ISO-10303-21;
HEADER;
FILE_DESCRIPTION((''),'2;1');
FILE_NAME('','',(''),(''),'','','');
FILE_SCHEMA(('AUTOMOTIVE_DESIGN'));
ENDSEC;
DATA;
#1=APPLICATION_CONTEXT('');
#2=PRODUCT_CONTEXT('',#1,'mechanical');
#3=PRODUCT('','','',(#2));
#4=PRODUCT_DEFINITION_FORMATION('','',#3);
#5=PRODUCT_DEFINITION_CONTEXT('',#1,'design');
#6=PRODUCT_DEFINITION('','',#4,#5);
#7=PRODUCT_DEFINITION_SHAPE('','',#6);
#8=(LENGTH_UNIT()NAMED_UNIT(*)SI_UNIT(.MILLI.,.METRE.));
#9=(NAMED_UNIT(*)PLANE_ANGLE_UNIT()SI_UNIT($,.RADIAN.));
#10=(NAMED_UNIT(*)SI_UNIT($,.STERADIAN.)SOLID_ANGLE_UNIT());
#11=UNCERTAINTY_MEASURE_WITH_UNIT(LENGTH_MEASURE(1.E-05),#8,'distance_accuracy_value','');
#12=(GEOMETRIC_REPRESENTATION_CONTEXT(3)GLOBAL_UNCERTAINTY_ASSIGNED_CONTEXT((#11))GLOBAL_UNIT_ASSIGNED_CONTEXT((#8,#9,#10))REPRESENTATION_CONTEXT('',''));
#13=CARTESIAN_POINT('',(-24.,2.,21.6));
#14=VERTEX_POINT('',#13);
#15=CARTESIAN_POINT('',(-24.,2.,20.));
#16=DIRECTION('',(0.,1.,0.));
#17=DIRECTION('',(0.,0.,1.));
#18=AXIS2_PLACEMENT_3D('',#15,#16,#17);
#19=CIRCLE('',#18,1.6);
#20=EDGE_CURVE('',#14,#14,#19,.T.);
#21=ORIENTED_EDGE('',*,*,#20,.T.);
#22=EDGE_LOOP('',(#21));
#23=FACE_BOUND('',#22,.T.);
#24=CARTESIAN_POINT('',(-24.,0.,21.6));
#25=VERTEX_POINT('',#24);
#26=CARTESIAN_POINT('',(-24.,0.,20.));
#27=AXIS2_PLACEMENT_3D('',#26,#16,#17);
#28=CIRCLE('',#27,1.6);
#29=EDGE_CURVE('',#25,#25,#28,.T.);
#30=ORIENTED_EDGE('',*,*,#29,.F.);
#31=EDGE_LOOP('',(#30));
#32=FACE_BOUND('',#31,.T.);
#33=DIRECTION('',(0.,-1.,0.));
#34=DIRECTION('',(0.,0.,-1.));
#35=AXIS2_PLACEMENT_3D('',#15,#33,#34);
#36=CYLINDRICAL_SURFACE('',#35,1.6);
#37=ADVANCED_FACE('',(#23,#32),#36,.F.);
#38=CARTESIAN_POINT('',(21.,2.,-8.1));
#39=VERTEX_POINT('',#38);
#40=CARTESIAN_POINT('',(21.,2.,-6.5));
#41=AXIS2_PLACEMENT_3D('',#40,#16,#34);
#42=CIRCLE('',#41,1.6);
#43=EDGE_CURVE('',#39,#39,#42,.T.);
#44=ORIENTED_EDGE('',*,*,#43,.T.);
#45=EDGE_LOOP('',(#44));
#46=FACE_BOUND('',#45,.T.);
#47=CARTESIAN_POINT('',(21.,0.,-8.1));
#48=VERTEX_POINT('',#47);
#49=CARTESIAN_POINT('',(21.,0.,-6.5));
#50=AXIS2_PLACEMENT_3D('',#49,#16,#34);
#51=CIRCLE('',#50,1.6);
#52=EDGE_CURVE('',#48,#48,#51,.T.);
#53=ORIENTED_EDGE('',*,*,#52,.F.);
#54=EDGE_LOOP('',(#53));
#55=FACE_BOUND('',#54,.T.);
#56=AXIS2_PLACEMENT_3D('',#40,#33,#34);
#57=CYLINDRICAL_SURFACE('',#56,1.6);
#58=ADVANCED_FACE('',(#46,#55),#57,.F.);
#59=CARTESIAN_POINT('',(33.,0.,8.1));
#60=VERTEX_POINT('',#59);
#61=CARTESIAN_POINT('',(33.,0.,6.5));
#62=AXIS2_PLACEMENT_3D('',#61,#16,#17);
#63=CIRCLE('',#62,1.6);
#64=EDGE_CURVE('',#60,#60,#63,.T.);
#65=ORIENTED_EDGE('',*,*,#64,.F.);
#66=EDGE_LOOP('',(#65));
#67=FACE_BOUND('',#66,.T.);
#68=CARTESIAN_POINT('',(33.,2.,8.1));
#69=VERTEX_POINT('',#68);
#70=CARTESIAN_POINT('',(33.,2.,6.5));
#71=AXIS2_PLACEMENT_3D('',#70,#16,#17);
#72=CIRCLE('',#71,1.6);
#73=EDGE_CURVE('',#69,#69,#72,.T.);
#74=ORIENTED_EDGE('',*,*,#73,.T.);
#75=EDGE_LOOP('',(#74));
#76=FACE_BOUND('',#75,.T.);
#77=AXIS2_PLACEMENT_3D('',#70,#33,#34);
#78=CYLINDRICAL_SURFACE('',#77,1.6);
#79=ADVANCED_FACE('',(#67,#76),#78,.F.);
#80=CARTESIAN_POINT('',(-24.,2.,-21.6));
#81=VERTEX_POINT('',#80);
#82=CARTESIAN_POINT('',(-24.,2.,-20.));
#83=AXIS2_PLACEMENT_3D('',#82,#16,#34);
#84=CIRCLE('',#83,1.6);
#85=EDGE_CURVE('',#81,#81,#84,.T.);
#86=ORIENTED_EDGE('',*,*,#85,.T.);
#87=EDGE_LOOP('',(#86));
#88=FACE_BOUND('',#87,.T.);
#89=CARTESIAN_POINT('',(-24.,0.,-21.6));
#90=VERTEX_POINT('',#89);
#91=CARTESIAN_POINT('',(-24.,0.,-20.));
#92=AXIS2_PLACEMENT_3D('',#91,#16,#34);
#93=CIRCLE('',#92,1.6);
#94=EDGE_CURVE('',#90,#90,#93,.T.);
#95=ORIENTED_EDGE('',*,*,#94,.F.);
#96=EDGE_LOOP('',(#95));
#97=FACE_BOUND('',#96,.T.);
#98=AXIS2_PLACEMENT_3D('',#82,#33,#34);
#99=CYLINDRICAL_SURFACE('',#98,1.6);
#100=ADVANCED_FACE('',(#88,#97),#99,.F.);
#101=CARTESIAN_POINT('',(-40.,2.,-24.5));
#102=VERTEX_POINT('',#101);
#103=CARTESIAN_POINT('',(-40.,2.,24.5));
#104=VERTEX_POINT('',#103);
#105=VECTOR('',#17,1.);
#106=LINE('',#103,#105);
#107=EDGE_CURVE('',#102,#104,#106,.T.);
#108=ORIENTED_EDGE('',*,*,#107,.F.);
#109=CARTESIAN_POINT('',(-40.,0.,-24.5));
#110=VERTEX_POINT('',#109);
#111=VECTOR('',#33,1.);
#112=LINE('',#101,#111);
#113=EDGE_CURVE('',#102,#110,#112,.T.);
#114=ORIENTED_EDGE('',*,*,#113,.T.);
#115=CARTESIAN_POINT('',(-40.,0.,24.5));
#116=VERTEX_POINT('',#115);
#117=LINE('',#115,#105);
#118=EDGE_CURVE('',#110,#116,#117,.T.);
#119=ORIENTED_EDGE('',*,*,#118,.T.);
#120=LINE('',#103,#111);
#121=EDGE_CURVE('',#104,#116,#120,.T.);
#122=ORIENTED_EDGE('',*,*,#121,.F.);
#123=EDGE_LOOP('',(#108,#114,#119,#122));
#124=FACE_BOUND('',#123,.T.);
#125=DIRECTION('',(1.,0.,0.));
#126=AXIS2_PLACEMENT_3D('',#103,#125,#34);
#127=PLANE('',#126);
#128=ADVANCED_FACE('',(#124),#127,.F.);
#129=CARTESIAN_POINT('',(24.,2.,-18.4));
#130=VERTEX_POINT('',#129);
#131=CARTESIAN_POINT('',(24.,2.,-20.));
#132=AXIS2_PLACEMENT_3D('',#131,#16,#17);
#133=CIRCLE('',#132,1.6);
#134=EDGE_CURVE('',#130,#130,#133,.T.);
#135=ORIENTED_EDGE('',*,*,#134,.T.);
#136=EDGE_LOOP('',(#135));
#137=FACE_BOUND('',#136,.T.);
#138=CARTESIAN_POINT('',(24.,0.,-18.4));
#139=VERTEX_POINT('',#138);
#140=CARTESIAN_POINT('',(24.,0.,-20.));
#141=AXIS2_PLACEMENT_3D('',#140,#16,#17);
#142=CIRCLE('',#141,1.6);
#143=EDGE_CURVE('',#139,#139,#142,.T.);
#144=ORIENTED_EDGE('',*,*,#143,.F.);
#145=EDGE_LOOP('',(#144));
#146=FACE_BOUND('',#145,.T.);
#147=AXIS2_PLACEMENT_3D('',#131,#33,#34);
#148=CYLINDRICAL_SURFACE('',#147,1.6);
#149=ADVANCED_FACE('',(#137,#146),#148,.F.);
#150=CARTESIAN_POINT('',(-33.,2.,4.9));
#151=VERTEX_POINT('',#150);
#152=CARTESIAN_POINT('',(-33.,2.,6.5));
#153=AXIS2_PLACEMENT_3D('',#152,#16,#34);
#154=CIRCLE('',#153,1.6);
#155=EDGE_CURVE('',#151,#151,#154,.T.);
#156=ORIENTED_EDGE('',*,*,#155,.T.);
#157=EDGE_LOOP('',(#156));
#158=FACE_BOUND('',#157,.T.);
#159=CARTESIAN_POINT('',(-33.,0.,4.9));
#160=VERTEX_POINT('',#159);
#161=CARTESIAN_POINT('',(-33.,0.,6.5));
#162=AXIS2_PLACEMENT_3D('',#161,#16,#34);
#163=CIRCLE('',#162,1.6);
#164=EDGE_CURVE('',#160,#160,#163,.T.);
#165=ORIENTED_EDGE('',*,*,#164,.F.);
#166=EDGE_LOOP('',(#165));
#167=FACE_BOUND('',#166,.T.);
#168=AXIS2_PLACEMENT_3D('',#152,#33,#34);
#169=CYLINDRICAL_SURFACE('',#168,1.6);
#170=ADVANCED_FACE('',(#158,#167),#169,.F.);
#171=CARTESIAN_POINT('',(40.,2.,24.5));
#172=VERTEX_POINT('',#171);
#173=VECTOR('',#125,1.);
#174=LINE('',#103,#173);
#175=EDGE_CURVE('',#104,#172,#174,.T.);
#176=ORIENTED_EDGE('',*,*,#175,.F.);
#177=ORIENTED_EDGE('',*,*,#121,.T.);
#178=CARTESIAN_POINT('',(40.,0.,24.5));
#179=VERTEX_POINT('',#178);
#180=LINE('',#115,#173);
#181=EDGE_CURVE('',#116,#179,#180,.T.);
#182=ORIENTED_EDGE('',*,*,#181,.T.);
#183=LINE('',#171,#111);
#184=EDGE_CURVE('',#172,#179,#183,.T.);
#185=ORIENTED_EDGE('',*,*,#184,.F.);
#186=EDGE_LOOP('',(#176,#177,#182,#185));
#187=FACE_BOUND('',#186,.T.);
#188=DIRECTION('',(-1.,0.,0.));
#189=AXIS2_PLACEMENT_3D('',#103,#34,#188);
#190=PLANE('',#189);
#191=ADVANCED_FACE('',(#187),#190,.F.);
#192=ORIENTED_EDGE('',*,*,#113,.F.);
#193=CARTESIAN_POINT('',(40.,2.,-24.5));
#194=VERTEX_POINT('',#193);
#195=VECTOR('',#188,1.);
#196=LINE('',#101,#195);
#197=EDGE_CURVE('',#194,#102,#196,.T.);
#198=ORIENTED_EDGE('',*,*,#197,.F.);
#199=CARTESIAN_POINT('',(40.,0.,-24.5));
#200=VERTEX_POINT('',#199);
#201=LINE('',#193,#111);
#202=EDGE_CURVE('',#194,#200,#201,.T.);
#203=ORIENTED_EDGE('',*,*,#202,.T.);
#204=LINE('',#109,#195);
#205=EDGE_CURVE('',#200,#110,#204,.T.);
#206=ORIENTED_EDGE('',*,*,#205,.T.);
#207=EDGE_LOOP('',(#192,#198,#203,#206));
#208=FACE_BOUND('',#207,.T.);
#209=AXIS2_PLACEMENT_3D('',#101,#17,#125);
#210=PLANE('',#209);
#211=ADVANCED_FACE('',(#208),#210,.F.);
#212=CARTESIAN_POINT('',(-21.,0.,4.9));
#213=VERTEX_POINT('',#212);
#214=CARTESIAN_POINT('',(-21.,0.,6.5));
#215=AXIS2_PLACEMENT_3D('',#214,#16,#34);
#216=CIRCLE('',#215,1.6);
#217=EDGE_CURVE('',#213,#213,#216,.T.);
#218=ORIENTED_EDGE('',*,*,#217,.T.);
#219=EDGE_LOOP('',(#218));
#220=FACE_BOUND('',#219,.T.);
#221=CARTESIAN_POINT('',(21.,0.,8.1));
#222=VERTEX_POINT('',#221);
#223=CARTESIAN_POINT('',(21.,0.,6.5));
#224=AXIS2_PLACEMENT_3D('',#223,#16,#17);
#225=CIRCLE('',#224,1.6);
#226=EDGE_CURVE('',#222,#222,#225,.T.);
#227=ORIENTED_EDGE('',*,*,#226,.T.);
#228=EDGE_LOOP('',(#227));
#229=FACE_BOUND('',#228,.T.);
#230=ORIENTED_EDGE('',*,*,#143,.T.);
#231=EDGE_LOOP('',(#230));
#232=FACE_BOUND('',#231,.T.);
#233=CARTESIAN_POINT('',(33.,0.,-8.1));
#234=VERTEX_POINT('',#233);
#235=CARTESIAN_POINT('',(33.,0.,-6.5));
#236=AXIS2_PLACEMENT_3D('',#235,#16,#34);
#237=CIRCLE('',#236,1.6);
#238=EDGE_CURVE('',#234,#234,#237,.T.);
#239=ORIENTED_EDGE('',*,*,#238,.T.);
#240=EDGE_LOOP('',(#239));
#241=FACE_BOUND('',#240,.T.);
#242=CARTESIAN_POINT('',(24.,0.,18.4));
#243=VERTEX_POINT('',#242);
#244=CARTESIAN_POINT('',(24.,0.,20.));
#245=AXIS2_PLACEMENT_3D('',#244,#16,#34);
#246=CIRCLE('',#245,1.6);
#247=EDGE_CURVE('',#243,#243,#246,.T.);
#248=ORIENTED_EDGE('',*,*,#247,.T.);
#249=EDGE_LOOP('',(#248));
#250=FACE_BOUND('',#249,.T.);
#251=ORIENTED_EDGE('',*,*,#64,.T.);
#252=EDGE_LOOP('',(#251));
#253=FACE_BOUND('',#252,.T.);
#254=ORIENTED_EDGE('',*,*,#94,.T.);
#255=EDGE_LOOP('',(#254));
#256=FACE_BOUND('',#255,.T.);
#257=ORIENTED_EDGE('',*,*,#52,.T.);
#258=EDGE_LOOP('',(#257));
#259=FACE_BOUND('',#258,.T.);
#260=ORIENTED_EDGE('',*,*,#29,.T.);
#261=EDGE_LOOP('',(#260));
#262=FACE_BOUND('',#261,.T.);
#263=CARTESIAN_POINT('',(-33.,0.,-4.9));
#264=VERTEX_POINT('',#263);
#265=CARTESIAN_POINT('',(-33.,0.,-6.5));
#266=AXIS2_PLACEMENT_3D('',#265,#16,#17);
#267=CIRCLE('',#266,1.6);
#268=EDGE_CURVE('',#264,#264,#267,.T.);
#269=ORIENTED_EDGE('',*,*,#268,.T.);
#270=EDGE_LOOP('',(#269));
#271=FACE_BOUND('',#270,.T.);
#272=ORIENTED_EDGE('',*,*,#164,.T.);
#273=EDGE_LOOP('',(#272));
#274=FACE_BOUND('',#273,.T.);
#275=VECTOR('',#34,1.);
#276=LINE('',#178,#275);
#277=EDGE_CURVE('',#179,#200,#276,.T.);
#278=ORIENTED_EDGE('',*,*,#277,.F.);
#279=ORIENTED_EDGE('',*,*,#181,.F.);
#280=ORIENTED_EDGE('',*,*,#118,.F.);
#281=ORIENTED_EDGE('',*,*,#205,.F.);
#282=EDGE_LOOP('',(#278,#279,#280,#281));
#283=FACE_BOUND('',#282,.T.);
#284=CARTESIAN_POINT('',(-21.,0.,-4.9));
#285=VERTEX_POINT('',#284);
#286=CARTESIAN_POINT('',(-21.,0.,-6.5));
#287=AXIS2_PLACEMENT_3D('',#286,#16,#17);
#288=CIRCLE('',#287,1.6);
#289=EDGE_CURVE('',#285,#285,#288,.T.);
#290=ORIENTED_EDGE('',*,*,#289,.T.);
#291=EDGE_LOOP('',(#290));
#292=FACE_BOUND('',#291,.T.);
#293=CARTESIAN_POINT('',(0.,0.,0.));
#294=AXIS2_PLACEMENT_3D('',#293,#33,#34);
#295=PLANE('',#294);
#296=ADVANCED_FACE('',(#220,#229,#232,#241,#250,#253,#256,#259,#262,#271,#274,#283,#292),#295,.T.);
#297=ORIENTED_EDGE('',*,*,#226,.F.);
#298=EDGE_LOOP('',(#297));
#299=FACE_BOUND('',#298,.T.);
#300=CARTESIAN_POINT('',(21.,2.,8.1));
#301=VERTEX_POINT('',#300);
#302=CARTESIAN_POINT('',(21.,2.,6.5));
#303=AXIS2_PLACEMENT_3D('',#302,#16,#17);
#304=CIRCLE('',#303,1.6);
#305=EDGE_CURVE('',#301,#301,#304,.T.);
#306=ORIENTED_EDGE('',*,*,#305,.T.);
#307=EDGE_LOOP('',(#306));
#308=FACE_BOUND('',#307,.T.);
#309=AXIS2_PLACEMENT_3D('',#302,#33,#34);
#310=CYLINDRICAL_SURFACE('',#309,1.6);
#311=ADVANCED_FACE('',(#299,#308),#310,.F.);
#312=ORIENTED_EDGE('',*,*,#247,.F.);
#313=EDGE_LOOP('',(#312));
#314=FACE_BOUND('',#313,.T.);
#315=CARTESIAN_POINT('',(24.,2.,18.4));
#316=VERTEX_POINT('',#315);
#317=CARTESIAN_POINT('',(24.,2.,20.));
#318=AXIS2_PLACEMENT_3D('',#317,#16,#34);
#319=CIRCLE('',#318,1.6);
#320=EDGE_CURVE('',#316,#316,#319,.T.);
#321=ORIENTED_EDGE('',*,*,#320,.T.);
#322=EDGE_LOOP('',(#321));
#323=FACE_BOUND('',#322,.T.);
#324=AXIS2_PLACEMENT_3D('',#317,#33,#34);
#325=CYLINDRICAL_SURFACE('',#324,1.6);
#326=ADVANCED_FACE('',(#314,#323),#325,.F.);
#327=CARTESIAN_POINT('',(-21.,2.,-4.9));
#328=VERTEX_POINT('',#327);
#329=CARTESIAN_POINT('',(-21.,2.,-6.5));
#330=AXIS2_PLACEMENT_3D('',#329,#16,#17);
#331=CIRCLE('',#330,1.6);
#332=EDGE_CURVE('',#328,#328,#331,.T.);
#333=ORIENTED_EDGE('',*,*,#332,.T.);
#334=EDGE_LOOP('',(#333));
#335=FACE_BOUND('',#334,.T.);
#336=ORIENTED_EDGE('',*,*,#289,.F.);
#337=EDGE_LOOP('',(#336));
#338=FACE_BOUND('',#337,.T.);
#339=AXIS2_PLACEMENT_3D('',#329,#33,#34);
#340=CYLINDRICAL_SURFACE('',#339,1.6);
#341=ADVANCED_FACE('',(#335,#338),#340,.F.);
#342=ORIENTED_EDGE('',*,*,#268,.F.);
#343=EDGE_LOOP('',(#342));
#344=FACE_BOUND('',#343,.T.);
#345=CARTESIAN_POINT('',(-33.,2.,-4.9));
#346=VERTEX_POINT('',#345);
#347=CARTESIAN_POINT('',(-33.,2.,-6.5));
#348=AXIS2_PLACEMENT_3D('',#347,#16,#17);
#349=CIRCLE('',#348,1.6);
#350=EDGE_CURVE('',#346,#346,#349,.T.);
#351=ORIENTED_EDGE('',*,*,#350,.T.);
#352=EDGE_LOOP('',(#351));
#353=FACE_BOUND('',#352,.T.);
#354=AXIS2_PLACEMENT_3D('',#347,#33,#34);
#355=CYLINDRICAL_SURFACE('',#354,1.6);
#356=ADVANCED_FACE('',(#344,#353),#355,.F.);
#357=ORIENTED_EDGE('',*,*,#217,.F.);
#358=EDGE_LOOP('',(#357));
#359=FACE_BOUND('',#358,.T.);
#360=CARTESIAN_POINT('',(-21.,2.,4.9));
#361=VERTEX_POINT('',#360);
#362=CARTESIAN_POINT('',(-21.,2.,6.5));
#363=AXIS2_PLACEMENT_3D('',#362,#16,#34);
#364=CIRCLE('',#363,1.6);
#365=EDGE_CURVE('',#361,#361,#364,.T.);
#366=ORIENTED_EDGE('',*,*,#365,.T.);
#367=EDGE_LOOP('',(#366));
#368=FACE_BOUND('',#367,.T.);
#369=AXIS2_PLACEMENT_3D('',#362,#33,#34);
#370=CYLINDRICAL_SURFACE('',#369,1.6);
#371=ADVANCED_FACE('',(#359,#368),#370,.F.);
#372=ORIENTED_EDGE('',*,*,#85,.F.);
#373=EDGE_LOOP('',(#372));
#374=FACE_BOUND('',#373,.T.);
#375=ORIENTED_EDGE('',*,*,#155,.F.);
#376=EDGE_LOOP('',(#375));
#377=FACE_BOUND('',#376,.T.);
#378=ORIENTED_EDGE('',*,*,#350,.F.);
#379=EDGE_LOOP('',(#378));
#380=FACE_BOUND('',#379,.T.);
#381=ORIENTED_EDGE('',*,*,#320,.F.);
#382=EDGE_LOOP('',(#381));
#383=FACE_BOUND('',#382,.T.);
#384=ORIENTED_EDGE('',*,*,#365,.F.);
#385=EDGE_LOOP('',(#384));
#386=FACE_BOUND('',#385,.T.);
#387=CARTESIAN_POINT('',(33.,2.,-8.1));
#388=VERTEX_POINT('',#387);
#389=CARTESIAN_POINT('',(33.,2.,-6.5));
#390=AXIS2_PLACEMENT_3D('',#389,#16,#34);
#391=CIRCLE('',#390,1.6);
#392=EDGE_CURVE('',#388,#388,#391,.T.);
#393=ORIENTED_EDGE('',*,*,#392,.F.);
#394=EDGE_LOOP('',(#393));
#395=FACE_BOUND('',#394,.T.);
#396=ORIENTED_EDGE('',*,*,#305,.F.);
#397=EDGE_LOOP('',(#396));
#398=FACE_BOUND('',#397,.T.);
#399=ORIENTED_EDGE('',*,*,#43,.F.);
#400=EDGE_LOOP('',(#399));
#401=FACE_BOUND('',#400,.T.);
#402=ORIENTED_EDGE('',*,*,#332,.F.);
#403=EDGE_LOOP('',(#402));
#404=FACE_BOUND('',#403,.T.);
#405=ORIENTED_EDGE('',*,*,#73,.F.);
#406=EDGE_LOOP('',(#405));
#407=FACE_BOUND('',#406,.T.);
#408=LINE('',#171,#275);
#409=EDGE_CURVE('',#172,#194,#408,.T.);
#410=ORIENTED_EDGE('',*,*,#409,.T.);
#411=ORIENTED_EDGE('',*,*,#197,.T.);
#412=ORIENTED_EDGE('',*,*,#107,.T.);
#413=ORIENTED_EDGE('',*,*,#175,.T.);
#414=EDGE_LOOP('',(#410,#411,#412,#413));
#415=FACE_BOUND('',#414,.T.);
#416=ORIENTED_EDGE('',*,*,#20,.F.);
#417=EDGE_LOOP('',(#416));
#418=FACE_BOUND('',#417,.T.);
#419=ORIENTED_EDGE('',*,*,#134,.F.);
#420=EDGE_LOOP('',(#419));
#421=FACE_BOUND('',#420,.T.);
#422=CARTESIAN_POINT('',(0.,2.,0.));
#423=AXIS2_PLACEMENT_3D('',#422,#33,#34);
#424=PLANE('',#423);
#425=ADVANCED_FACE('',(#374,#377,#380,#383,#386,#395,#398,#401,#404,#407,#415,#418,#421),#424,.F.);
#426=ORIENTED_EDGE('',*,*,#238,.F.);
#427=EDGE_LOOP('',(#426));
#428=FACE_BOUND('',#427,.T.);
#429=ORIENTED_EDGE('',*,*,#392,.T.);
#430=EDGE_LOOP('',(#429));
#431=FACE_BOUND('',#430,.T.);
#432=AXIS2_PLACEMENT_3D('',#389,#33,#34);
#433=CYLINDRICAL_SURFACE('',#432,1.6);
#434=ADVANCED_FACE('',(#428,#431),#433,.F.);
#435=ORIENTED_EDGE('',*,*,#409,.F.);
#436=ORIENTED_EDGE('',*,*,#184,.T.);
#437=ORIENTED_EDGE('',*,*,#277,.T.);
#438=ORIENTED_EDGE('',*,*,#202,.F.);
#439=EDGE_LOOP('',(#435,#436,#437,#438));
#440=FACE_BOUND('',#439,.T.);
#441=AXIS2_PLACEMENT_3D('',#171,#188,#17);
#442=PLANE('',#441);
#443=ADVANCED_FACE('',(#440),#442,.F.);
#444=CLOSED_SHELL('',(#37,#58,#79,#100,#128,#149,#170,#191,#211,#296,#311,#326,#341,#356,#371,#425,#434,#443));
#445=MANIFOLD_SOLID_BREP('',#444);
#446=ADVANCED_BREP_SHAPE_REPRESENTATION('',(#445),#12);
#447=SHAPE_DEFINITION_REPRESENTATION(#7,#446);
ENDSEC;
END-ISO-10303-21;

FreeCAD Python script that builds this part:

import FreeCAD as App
import Part
import Sketcher

V = App.Vector
Q = App.Units.Quantity


def add_polygon(sketch, points):
    """Adds a closed chain of lines whose ends are joined by coincident constraints."""
    first, n = sketch.GeometryCount, len(points)
    for a, b in zip(points, points[1:] + points[:1]):
        sketch.addGeometry(Part.LineSegment(App.Vector(*a, 0), App.Vector(*b, 0)), False)
    for i in range(n):
        sketch.addConstraint(Sketcher.Constraint("Coincident", first + i, 2, first + (i + 1) % n, 1))

doc = App.newDocument("Part")
body = doc.addObject("PartDesign::Body", "Body")

sketch1 = doc.addObject("Sketcher::SketchObject", "Sketch")
body.addObject(sketch1)
sketch1.AttachmentSupport = (doc.XZ_Plane, [""])
sketch1.MapMode = "FlatFace"
add_polygon(sketch1, [(-40, -24.5), (-40, 24.5), (40, 24.5), (40, -24.5)])
sketch1.addGeometry(Part.Circle(V(-24, 20, 0), V(0, 0, 1), 1.6), False)
sketch1.addGeometry(Part.Circle(V(-33, 6.5, 0), V(0, 0, 1), 1.6), False)
sketch1.addGeometry(Part.Circle(V(-21, 6.5, 0), V(0, 0, 1), 1.6), False)
sketch1.addGeometry(Part.Circle(V(24, 20, 0), V(0, 0, 1), 1.6), False)
sketch1.addGeometry(Part.Circle(V(21, 6.5, 0), V(0, 0, 1), 1.6), False)
sketch1.addGeometry(Part.Circle(V(33, 6.5, 0), V(0, 0, 1), 1.6), False)
sketch1.addGeometry(Part.Circle(V(-33, -6.5, 0), V(0, 0, 1), 1.6), False)
sketch1.addGeometry(Part.Circle(V(-21, -6.5, 0), V(0, 0, 1), 1.6), False)
sketch1.addGeometry(Part.Circle(V(-24, -20, 0), V(0, 0, 1), 1.6), False)
sketch1.addGeometry(Part.Circle(V(21, -6.5, 0), V(0, 0, 1), 1.6), False)
sketch1.addGeometry(Part.Circle(V(33, -6.5, 0), V(0, 0, 1), 1.6), False)
sketch1.addGeometry(Part.Circle(V(24, -20, 0), V(0, 0, 1), 1.6), False)
sketch1.addConstraint(Sketcher.Constraint("Vertical", 0))
sketch1.addConstraint(Sketcher.Constraint("Horizontal", 1))
sketch1.addConstraint(Sketcher.Constraint("Vertical", 2))
sketch1.addConstraint(Sketcher.Constraint("Horizontal", 3))
sketch1.addConstraint(Sketcher.Constraint("Equal", 4, 5))
sketch1.addConstraint(Sketcher.Constraint("Equal", 5, 6))
sketch1.addConstraint(Sketcher.Constraint("Equal", 6, 7))
sketch1.addConstraint(Sketcher.Constraint("Equal", 7, 8))
sketch1.addConstraint(Sketcher.Constraint("Equal", 8, 9))
sketch1.addConstraint(Sketcher.Constraint("Equal", 9, 10))
sketch1.addConstraint(Sketcher.Constraint("Equal", 10, 11))
sketch1.addConstraint(Sketcher.Constraint("Equal", 11, 12))
sketch1.addConstraint(Sketcher.Constraint("Equal", 12, 13))
sketch1.addConstraint(Sketcher.Constraint("Equal", 13, 14))
sketch1.addConstraint(Sketcher.Constraint("Equal", 14, 15))
sketch1.addConstraint(Sketcher.Constraint("Symmetric", 9, 3, 10, 3, -1, 1))
sketch1.addConstraint(Sketcher.Constraint("Symmetric", 8, 3, 11, 3, -1, 1))
sketch1.addConstraint(Sketcher.Constraint("Symmetric", 7, 3, 12, 3, -1, 1))
sketch1.addConstraint(Sketcher.Constraint("Symmetric", 6, 3, 13, 3, -1, 1))
sketch1.addConstraint(Sketcher.Constraint("Symmetric", 5, 3, 14, 3, -1, 1))
sketch1.addConstraint(Sketcher.Constraint("Symmetric", 4, 3, 15, 3, -1, 1))
sketch1.addConstraint(Sketcher.Constraint("Symmetric", 0, 2, 2, 2, -1, 1))
sketch1.addConstraint(Sketcher.Constraint("Symmetric", 4, 3, 7, 3, -2))
sketch1.addConstraint(Sketcher.Constraint("Symmetric", 6, 3, 8, 3, -2))
sketch1.addConstraint(Sketcher.Constraint("Symmetric", 5, 3, 9, 3, -2))
sketch1.addConstraint(Sketcher.Constraint("Horizontal", 5, 3, 6, 3))
sketch1.addConstraint(Sketcher.Constraint("Diameter", 4, Q("3.2 mm")))
sketch1.addConstraint(Sketcher.Constraint("DistanceX", 1, 1, 1, 2, Q("80 mm")))
sketch1.addConstraint(Sketcher.Constraint("DistanceY", 0, 1, 0, 2, Q("49 mm")))
sketch1.addConstraint(Sketcher.Constraint("DistanceX", 4, 3, -1, 1, Q("24 mm")))
sketch1.addConstraint(Sketcher.Constraint("DistanceY", -1, 1, 4, 3, Q("20 mm")))
sketch1.addConstraint(Sketcher.Constraint("DistanceX", 5, 3, -1, 1, Q("33 mm")))
sketch1.addConstraint(Sketcher.Constraint("DistanceX", 6, 3, -1, 1, Q("21 mm")))
sketch1.addConstraint(Sketcher.Constraint("DistanceY", 10, 3, 5, 3, Q("13 mm")))
pad1 = doc.addObject("PartDesign::Pad", "Pad")
body.addObject(pad1)
pad1.Profile = sketch1
pad1.Length = 2
pad1.Reversed = True

doc.recompute()
